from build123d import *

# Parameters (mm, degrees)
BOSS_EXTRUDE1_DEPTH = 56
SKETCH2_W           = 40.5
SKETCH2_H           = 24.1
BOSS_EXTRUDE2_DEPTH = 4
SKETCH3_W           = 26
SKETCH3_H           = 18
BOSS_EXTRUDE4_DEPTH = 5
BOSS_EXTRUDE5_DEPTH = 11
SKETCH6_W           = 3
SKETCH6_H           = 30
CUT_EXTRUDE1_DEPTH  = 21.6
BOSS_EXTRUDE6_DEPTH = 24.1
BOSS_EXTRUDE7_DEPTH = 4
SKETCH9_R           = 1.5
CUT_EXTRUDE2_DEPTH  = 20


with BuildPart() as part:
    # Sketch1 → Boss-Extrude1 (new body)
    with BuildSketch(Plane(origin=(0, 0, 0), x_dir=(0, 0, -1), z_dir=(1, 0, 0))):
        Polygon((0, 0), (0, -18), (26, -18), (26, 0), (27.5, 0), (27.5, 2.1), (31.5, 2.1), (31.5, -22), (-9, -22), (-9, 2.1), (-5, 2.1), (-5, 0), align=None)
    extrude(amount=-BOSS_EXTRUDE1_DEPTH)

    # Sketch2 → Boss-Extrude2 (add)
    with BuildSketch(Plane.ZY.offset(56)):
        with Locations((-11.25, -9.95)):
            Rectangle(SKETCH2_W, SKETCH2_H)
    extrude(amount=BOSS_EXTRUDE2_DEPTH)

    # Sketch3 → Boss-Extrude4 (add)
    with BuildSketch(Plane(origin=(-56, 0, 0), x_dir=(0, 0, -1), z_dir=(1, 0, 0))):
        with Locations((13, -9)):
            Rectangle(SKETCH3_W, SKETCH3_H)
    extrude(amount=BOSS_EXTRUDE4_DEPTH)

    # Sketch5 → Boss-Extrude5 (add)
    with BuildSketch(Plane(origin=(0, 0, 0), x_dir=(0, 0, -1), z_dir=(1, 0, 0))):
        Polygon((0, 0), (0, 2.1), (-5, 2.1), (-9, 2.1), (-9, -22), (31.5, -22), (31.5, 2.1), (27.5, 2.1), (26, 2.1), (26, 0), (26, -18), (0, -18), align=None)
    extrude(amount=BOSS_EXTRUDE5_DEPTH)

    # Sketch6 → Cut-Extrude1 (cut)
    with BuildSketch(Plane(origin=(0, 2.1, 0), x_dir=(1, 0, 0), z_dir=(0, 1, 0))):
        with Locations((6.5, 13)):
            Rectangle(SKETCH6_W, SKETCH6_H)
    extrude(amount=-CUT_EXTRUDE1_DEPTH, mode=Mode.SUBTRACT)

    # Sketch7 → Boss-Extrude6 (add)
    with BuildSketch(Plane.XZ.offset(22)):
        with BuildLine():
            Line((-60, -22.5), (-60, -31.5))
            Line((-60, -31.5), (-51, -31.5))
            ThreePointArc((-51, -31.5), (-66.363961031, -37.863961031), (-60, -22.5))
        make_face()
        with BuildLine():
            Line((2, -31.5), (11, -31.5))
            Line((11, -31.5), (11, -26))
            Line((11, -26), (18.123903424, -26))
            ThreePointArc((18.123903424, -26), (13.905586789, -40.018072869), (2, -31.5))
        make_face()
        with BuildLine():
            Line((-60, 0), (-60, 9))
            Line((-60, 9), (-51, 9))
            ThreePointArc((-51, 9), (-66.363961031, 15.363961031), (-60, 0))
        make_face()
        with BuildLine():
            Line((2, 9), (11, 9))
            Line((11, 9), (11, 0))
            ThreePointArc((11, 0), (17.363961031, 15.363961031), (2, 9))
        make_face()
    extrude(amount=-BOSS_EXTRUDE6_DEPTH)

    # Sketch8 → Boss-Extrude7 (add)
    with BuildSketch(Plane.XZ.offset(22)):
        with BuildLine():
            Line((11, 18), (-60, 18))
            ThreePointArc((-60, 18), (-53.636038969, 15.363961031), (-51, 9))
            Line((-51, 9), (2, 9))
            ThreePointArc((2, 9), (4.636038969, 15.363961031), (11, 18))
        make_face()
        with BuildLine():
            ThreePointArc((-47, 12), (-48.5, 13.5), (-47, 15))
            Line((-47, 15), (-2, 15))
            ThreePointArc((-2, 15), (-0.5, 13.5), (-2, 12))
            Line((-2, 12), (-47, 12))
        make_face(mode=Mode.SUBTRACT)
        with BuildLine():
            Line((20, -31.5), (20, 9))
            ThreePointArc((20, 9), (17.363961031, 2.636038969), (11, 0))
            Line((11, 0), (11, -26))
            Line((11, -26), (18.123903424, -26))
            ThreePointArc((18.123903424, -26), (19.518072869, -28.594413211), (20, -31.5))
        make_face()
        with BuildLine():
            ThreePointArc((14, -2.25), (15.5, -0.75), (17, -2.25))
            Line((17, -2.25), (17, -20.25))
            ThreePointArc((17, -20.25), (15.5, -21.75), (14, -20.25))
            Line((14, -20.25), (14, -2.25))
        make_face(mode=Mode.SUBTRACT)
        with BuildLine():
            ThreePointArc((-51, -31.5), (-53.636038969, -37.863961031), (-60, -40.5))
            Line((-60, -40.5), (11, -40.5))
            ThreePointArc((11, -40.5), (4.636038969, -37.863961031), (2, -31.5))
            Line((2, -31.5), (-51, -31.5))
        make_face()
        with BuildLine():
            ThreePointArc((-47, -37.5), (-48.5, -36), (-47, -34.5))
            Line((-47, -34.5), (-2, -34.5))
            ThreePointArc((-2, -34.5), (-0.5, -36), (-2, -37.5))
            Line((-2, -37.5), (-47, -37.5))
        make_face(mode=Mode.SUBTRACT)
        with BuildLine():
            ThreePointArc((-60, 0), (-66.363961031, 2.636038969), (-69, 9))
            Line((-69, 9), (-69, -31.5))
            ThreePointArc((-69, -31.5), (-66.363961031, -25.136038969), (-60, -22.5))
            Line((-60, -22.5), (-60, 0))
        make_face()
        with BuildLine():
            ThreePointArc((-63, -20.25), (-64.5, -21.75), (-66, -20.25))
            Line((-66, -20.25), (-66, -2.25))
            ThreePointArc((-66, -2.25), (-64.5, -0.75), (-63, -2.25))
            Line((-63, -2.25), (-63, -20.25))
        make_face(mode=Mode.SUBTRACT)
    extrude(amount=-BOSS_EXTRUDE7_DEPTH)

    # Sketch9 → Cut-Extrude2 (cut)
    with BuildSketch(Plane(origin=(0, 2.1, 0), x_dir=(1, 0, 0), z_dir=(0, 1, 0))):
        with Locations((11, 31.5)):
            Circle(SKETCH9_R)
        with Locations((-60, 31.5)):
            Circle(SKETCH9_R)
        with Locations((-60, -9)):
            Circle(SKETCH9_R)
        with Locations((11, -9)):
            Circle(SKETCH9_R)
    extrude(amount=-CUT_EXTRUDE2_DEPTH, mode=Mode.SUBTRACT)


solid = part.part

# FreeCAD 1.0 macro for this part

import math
import FreeCAD as App
import Part
import Sketcher

doc = App.newDocument("Part")
body = doc.addObject("PartDesign::Body", "Body")

sketch1 = body.newObject("Sketcher::SketchObject", "Sketch")
sketch1.AttachmentSupport = (doc.getObject("YZ_Plane"), [""])
sketch1.MapMode = "FlatFace"
sketch1.addGeometry(Part.LineSegment(App.Vector(-18, 0, 0), App.Vector(0, 0, 0)), False)
sketch1.addGeometry(Part.LineSegment(App.Vector(0, 0, 0), App.Vector(0, 5, 0)), False)
sketch1.addGeometry(Part.LineSegment(App.Vector(0, 5, 0), App.Vector(2.1, 5, 0)), False)
sketch1.addGeometry(Part.LineSegment(App.Vector(2.1, 5, 0), App.Vector(2.1, 9, 0)), False)
sketch1.addGeometry(Part.LineSegment(App.Vector(2.1, 9, 0), App.Vector(-22, 9, 0)), False)
sketch1.addGeometry(Part.LineSegment(App.Vector(-22, 9, 0), App.Vector(-22, -31.5, 0)), False)
sketch1.addGeometry(Part.LineSegment(App.Vector(-22, -31.5, 0), App.Vector(2.1, -31.5, 0)), False)
sketch1.addGeometry(Part.LineSegment(App.Vector(2.1, -31.5, 0), App.Vector(2.1, -27.5, 0)), False)
sketch1.addGeometry(Part.LineSegment(App.Vector(2.1, -27.5, 0), App.Vector(0, -27.5, 0)), False)
sketch1.addGeometry(Part.LineSegment(App.Vector(0, -27.5, 0), App.Vector(0, -26, 0)), False)
sketch1.addGeometry(Part.LineSegment(App.Vector(0, -26, 0), App.Vector(-18, -26, 0)), False)
sketch1.addGeometry(Part.LineSegment(App.Vector(-18, -26, 0), App.Vector(-18, 0, 0)), False)
sketch1.addConstraint(Sketcher.Constraint("Coincident", 0, 2, 1, 1))
sketch1.addConstraint(Sketcher.Constraint("Coincident", 1, 2, 2, 1))
sketch1.addConstraint(Sketcher.Constraint("Coincident", 2, 2, 3, 1))
sketch1.addConstraint(Sketcher.Constraint("Coincident", 3, 2, 4, 1))
sketch1.addConstraint(Sketcher.Constraint("Coincident", 4, 2, 5, 1))
sketch1.addConstraint(Sketcher.Constraint("Coincident", 5, 2, 6, 1))
sketch1.addConstraint(Sketcher.Constraint("Coincident", 6, 2, 7, 1))
sketch1.addConstraint(Sketcher.Constraint("Coincident", 7, 2, 8, 1))
sketch1.addConstraint(Sketcher.Constraint("Coincident", 8, 2, 9, 1))
sketch1.addConstraint(Sketcher.Constraint("Coincident", 9, 2, 10, 1))
sketch1.addConstraint(Sketcher.Constraint("Coincident", 10, 2, 11, 1))
sketch1.addConstraint(Sketcher.Constraint("Coincident", 11, 2, 0, 1))
sketch1.addConstraint(Sketcher.Constraint("Horizontal", 0))
sketch1.addConstraint(Sketcher.Constraint("Vertical", 1))
sketch1.addConstraint(Sketcher.Constraint("Horizontal", 2))
sketch1.addConstraint(Sketcher.Constraint("Vertical", 3))
sketch1.addConstraint(Sketcher.Constraint("Horizontal", 4))
sketch1.addConstraint(Sketcher.Constraint("Vertical", 5))
sketch1.addConstraint(Sketcher.Constraint("Horizontal", 6))
sketch1.addConstraint(Sketcher.Constraint("Vertical", 7))
sketch1.addConstraint(Sketcher.Constraint("Horizontal", 8))
sketch1.addConstraint(Sketcher.Constraint("Vertical", 9))
sketch1.addConstraint(Sketcher.Constraint("Horizontal", 10))
sketch1.addConstraint(Sketcher.Constraint("Vertical", 11))
sketch1.addConstraint(Sketcher.Constraint("Coincident", 0, 2, -1, 1))
sketch1.addConstraint(Sketcher.Constraint("PointOnObject", 8, 2, -2))
sketch1.addConstraint(Sketcher.Constraint("Vertical", 3, 2, 6, 2))
sketch1.addConstraint(Sketcher.Constraint("Equal", 3, 7))
sketch1.addConstraint(Sketcher.Constraint("DistanceX", 0, 1, 0, 2, 18.0))
sketch1.addConstraint(Sketcher.Constraint("DistanceY", 1, 1, 1, 2, 5.0))
sketch1.addConstraint(Sketcher.Constraint("DistanceY", 3, 1, 3, 2, 4.0))
sketch1.addConstraint(Sketcher.Constraint("DistanceY", 11, 1, 11, 2, 26.0))
sketch1.addConstraint(Sketcher.Constraint("DistanceX", 2, 1, 2, 2, 2.1))
sketch1.addConstraint(Sketcher.Constraint("DistanceX", 4, 2, 4, 1, 24.1))
sketch1.addConstraint(Sketcher.Constraint("DistanceY", 5, 2, 5, 1, 40.5))
pad1 = body.newObject("PartDesign::Pad", "Pad")
pad1.Profile = sketch1
pad1.Length = 56
pad1.Reversed = True

sketch2 = body.newObject("Sketcher::SketchObject", "Sketch001")
sketch2.AttachmentSupport = (doc.getObject("YZ_Plane"), [""])
sketch2.MapMode = "FlatFace"
sketch2.AttachmentOffset = App.Placement(App.Vector(0, 0, -56), App.Rotation())
sketch2.addGeometry(Part.LineSegment(App.Vector(2.1, -31.5, 0), App.Vector(-22, -31.5, 0)), False)
sketch2.addGeometry(Part.LineSegment(App.Vector(-22, -31.5, 0), App.Vector(-22, 9, 0)), False)
sketch2.addGeometry(Part.LineSegment(App.Vector(-22, 9, 0), App.Vector(2.1, 9, 0)), False)
sketch2.addGeometry(Part.LineSegment(App.Vector(2.1, 9, 0), App.Vector(2.1, -31.5, 0)), False)
sketch2.addConstraint(Sketcher.Constraint("Coincident", 0, 2, 1, 1))
sketch2.addConstraint(Sketcher.Constraint("Coincident", 1, 2, 2, 1))
sketch2.addConstraint(Sketcher.Constraint("Coincident", 2, 2, 3, 1))
sketch2.addConstraint(Sketcher.Constraint("Coincident", 3, 2, 0, 1))
sketch2.addConstraint(Sketcher.Constraint("Horizontal", 0))
sketch2.addConstraint(Sketcher.Constraint("Vertical", 1))
sketch2.addConstraint(Sketcher.Constraint("Horizontal", 2))
sketch2.addConstraint(Sketcher.Constraint("Vertical", 3))
sketch2.addConstraint(Sketcher.Constraint("DistanceX", 0, 2, 0, 1, 24.1))
sketch2.addConstraint(Sketcher.Constraint("DistanceY", 1, 1, 1, 2, 40.5))
sketch2.addConstraint(Sketcher.Constraint("DistanceX", 0, 2, -1, 1, 22.0))
sketch2.addConstraint(Sketcher.Constraint("DistanceY", -1, 1, 1, 2, 9.0))
pad2 = body.newObject("PartDesign::Pad", "Pad001")
pad2.Profile = sketch2
pad2.Length = 4
pad2.Reversed = True

sketch3 = body.newObject("Sketcher::SketchObject", "Sketch002")
sketch3.AttachmentSupport = (doc.getObject("YZ_Plane"), [""])
sketch3.MapMode = "FlatFace"
sketch3.AttachmentOffset = App.Placement(App.Vector(0, 0, -56), App.Rotation())
sketch3.addGeometry(Part.LineSegment(App.Vector(0, 0, 0), App.Vector(-18, 0, 0)), False)
sketch3.addGeometry(Part.LineSegment(App.Vector(-18, 0, 0), App.Vector(-18, -26, 0)), False)
sketch3.addGeometry(Part.LineSegment(App.Vector(-18, -26, 0), App.Vector(0, -26, 0)), False)
sketch3.addGeometry(Part.LineSegment(App.Vector(0, -26, 0), App.Vector(0, 0, 0)), False)
sketch3.addConstraint(Sketcher.Constraint("Coincident", 0, 2, 1, 1))
sketch3.addConstraint(Sketcher.Constraint("Coincident", 1, 2, 2, 1))
sketch3.addConstraint(Sketcher.Constraint("Coincident", 2, 2, 3, 1))
sketch3.addConstraint(Sketcher.Constraint("Coincident", 3, 2, 0, 1))
sketch3.addConstraint(Sketcher.Constraint("Horizontal", 0))
sketch3.addConstraint(Sketcher.Constraint("Vertical", 1))
sketch3.addConstraint(Sketcher.Constraint("Horizontal", 2))
sketch3.addConstraint(Sketcher.Constraint("Vertical", 3))
sketch3.addConstraint(Sketcher.Constraint("Coincident", 3, 2, -1, 1))
sketch3.addConstraint(Sketcher.Constraint("DistanceX", 0, 2, 0, 1, 18.0))
sketch3.addConstraint(Sketcher.Constraint("DistanceY", 1, 2, 1, 1, 26.0))
pad3 = body.newObject("PartDesign::Pad", "Pad002")
pad3.Profile = sketch3
pad3.Length = 5

sketch4 = body.newObject("Sketcher::SketchObject", "Sketch003")
sketch4.AttachmentSupport = (doc.getObject("YZ_Plane"), [""])
sketch4.MapMode = "FlatFace"
sketch4.addGeometry(Part.LineSegment(App.Vector(2.1, 0, 0), App.Vector(2.1, 9, 0)), False)
sketch4.addGeometry(Part.LineSegment(App.Vector(2.1, 9, 0), App.Vector(-22, 9, 0)), False)
sketch4.addGeometry(Part.LineSegment(App.Vector(-22, 9, 0), App.Vector(-22, -31.5, 0)), False)
sketch4.addGeometry(Part.LineSegment(App.Vector(-22, -31.5, 0), App.Vector(2.1, -31.5, 0)), False)
sketch4.addGeometry(Part.LineSegment(App.Vector(2.1, -31.5, 0), App.Vector(2.1, -26, 0)), False)
sketch4.addGeometry(Part.LineSegment(App.Vector(2.1, -26, 0), App.Vector(-18, -26, 0)), False)
sketch4.addGeometry(Part.LineSegment(App.Vector(-18, -26, 0), App.Vector(-18, 0, 0)), False)
sketch4.addGeometry(Part.LineSegment(App.Vector(-18, 0, 0), App.Vector(2.1, 0, 0)), False)
sketch4.addConstraint(Sketcher.Constraint("Coincident", 0, 2, 1, 1))
sketch4.addConstraint(Sketcher.Constraint("Coincident", 1, 2, 2, 1))
sketch4.addConstraint(Sketcher.Constraint("Coincident", 2, 2, 3, 1))
sketch4.addConstraint(Sketcher.Constraint("Coincident", 3, 2, 4, 1))
sketch4.addConstraint(Sketcher.Constraint("Coincident", 4, 2, 5, 1))
sketch4.addConstraint(Sketcher.Constraint("Coincident", 5, 2, 6, 1))
sketch4.addConstraint(Sketcher.Constraint("Coincident", 6, 2, 7, 1))
sketch4.addConstraint(Sketcher.Constraint("Coincident", 7, 2, 0, 1))
sketch4.addConstraint(Sketcher.Constraint("Vertical", 0))
sketch4.addConstraint(Sketcher.Constraint("Horizontal", 1))
sketch4.addConstraint(Sketcher.Constraint("Vertical", 2))
sketch4.addConstraint(Sketcher.Constraint("Horizontal", 3))
sketch4.addConstraint(Sketcher.Constraint("Vertical", 4))
sketch4.addConstraint(Sketcher.Constraint("Horizontal", 5))
sketch4.addConstraint(Sketcher.Constraint("Vertical", 6))
sketch4.addConstraint(Sketcher.Constraint("Horizontal", 7))
sketch4.addConstraint(Sketcher.Constraint("PointOnObject", 6, 2, -1))
sketch4.addConstraint(Sketcher.Constraint("Vertical", 0, 2, 3, 2))
sketch4.addConstraint(Sketcher.Constraint("DistanceY", 0, 1, 0, 2, 9.0))
sketch4.addConstraint(Sketcher.Constraint("DistanceY", 6, 1, 6, 2, 26.0))
sketch4.addConstraint(Sketcher.Constraint("DistanceX", 1, 2, 1, 1, 24.1))
sketch4.addConstraint(Sketcher.Constraint("DistanceX", 5, 2, 5, 1, 20.1))
sketch4.addConstraint(Sketcher.Constraint("DistanceY", 2, 2, 2, 1, 40.5))
sketch4.addConstraint(Sketcher.Constraint("DistanceX", 1, 2, -1, 1, 22.0))
pad4 = body.newObject("PartDesign::Pad", "Pad003")
pad4.Profile = sketch4
pad4.Length = 11

sketch5 = body.newObject("Sketcher::SketchObject", "Sketch004")
sketch5.AttachmentSupport = (doc.getObject("XZ_Plane"), [""])
sketch5.MapMode = "FlatFace"
sketch5.AttachmentOffset = App.Placement(App.Vector(0, 0, -2.1), App.Rotation())
sketch5.addGeometry(Part.LineSegment(App.Vector(5, -28, 0), App.Vector(5, 2, 0)), False)
sketch5.addGeometry(Part.LineSegment(App.Vector(5, 2, 0), App.Vector(8, 2, 0)), False)
sketch5.addGeometry(Part.LineSegment(App.Vector(8, 2, 0), App.Vector(8, -28, 0)), False)
sketch5.addGeometry(Part.LineSegment(App.Vector(8, -28, 0), App.Vector(5, -28, 0)), False)
sketch5.addConstraint(Sketcher.Constraint("Coincident", 0, 2, 1, 1))
sketch5.addConstraint(Sketcher.Constraint("Coincident", 1, 2, 2, 1))
sketch5.addConstraint(Sketcher.Constraint("Coincident", 2, 2, 3, 1))
sketch5.addConstraint(Sketcher.Constraint("Coincident", 3, 2, 0, 1))
sketch5.addConstraint(Sketcher.Constraint("Vertical", 0))
sketch5.addConstraint(Sketcher.Constraint("Horizontal", 1))
sketch5.addConstraint(Sketcher.Constraint("Vertical", 2))
sketch5.addConstraint(Sketcher.Constraint("Horizontal", 3))
sketch5.addConstraint(Sketcher.Constraint("DistanceX", 1, 1, 1, 2, 3.0))
sketch5.addConstraint(Sketcher.Constraint("DistanceY", 0, 1, 0, 2, 30.0))
sketch5.addConstraint(Sketcher.Constraint("DistanceX", -1, 1, 0, 2, 5.0))
sketch5.addConstraint(Sketcher.Constraint("DistanceY", -1, 1, 0, 2, 2.0))
pocket1 = body.newObject("PartDesign::Pocket", "Pocket")
pocket1.Profile = sketch5
pocket1.Length = 21.6
pocket1.Reversed = True

sketch6 = body.newObject("Sketcher::SketchObject", "Sketch005")
sketch6.AttachmentSupport = (doc.getObject("XZ_Plane"), [""])
sketch6.MapMode = "FlatFace"
sketch6.AttachmentOffset = App.Placement(App.Vector(0, 0, 22), App.Rotation())
sketch6.addGeometry(Part.LineSegment(App.Vector(-60, -31.5, 0), App.Vector(-60, -22.5, 0)), False)
sketch6.addGeometry(Part.ArcOfCircle(Part.Circle(App.Vector(-60, -31.5, 0), App.Vector(0, 0, 1), 9), math.radians(90), math.radians(360)), False)
sketch6.addGeometry(Part.LineSegment(App.Vector(-51, -31.5, 0), App.Vector(-60, -31.5, 0)), False)
sketch6.addGeometry(Part.LineSegment(App.Vector(11, -31.5, 0), App.Vector(2, -31.5, 0)), False)
sketch6.addGeometry(Part.ArcOfCircle(Part.Circle(App.Vector(11, -31.5, 0), App.Vector(0, 0, 1), 9), math.radians(180), math.radians(397.669887)), False)
sketch6.addGeometry(Part.LineSegment(App.Vector(18.123903, -26, 0), App.Vector(11, -26, 0)), False)
sketch6.addGeometry(Part.LineSegment(App.Vector(11, -26, 0), App.Vector(11, -31.5, 0)), False)
sketch6.addGeometry(Part.LineSegment(App.Vector(-60, 0, 0), App.Vector(-60, 9, 0)), False)
sketch6.addGeometry(Part.LineSegment(App.Vector(-60, 9, 0), App.Vector(-51, 9, 0)), False)
sketch6.addGeometry(Part.ArcOfCircle(Part.Circle(App.Vector(-60, 9, 0), App.Vector(0, 0, 1), 9), math.radians(0), math.radians(270)), False)
sketch6.addGeometry(Part.LineSegment(App.Vector(2, 9, 0), App.Vector(11, 9, 0)), False)
sketch6.addGeometry(Part.LineSegment(App.Vector(11, 9, 0), App.Vector(11, 0, 0)), False)
sketch6.addGeometry(Part.ArcOfCircle(Part.Circle(App.Vector(11, 9, 0), App.Vector(0, 0, 1), 9), math.radians(-90), math.radians(180)), False)
sketch6.addConstraint(Sketcher.Constraint("Coincident", 0, 2, 1, 1))
sketch6.addConstraint(Sketcher.Constraint("Coincident", 1, 2, 2, 1))
sketch6.addConstraint(Sketcher.Constraint("Coincident", 2, 2, 0, 1))
sketch6.addConstraint(Sketcher.Constraint("Coincident", 3, 2, 4, 1))
sketch6.addConstraint(Sketcher.Constraint("Coincident", 4, 2, 5, 1))
sketch6.addConstraint(Sketcher.Constraint("Coincident", 5, 2, 6, 1))
sketch6.addConstraint(Sketcher.Constraint("Coincident", 6, 2, 3, 1))
sketch6.addConstraint(Sketcher.Constraint("Coincident", 7, 2, 8, 1))
sketch6.addConstraint(Sketcher.Constraint("Coincident", 8, 2, 9, 1))
sketch6.addConstraint(Sketcher.Constraint("Coincident", 9, 2, 7, 1))
sketch6.addConstraint(Sketcher.Constraint("Coincident", 10, 2, 11, 1))
sketch6.addConstraint(Sketcher.Constraint("Coincident", 11, 2, 12, 1))
sketch6.addConstraint(Sketcher.Constraint("Coincident", 12, 2, 10, 1))
sketch6.addConstraint(Sketcher.Constraint("Vertical", 0))
sketch6.addConstraint(Sketcher.Constraint("Horizontal", 2))
sketch6.addConstraint(Sketcher.Constraint("Horizontal", 3))
sketch6.addConstraint(Sketcher.Constraint("Horizontal", 5))
sketch6.addConstraint(Sketcher.Constraint("Vertical", 6))
sketch6.addConstraint(Sketcher.Constraint("Vertical", 7))
sketch6.addConstraint(Sketcher.Constraint("Horizontal", 8))
sketch6.addConstraint(Sketcher.Constraint("Horizontal", 10))
sketch6.addConstraint(Sketcher.Constraint("Vertical", 11))
sketch6.addConstraint(Sketcher.Constraint("Coincident", 2, 2, 1, 3))
sketch6.addConstraint(Sketcher.Constraint("Coincident", 6, 2, 4, 3))
sketch6.addConstraint(Sketcher.Constraint("Coincident", 7, 2, 9, 3))
sketch6.addConstraint(Sketcher.Constraint("Coincident", 10, 2, 12, 3))
sketch6.addConstraint(Sketcher.Constraint("Equal", 1, 4))
sketch6.addConstraint(Sketcher.Constraint("Equal", 4, 9))
sketch6.addConstraint(Sketcher.Constraint("Equal", 9, 12))
sketch6.addConstraint(Sketcher.Constraint("PointOnObject", 9, 2, -1))
sketch6.addConstraint(Sketcher.Constraint("PointOnObject", 11, 2, -1))
sketch6.addConstraint(Sketcher.Constraint("Horizontal", 1, 3, 4, 3))
sketch6.addConstraint(Sketcher.Constraint("Vertical", 1, 3, 9, 3))
sketch6.addConstraint(Sketcher.Constraint("Vertical", 4, 3, 12, 3))
sketch6.addConstraint(Sketcher.Constraint("Radius", 1, 9.0))
sketch6.addConstraint(Sketcher.Constraint("DistanceY", 6, 2, 6, 1, 5.5))
sketch6.addConstraint(Sketcher.Constraint("DistanceX", 1, 3, -1, 1, 60.0))
sketch6.addConstraint(Sketcher.Constraint("DistanceX", -1, 1, 4, 3, 11.0))
sketch6.addConstraint(Sketcher.Constraint("DistanceY", 4, 2, -1, 1, 26.0))
pad5 = body.newObject("PartDesign::Pad", "Pad004")
pad5.Profile = sketch6
pad5.Length = 24.1
pad5.Reversed = True

sketch7 = body.newObject("Sketcher::SketchObject", "Sketch006")
sketch7.AttachmentSupport = (doc.getObject("XZ_Plane"), [""])
sketch7.MapMode = "FlatFace"
sketch7.AttachmentOffset = App.Placement(App.Vector(0, 0, 22), App.Rotation())
sketch7.addGeometry(Part.LineSegment(App.Vector(11, 18, 0), App.Vector(-60, 18, 0)), False)
sketch7.addGeometry(Part.ArcOfCircle(Part.Circle(App.Vector(-60, 9, 0), App.Vector(0, 0, 1), 9), math.radians(0), math.radians(90)), False)
sketch7.addGeometry(Part.LineSegment(App.Vector(-51, 9, 0), App.Vector(2, 9, 0)), False)
sketch7.addGeometry(Part.ArcOfCircle(Part.Circle(App.Vector(11, 9, 0), App.Vector(0, 0, 1), 9), math.radians(90), math.radians(180)), False)
sketch7.addGeometry(Part.LineSegment(App.Vector(-2, 12, 0), App.Vector(-47, 12, 0)), False)
sketch7.addGeometry(Part.ArcOfCircle(Part.Circle(App.Vector(-47, 13.5, 0), App.Vector(0, 0, 1), 1.5), math.radians(90), math.radians(270)), False)
sketch7.addGeometry(Part.LineSegment(App.Vector(-47, 15, 0), App.Vector(-2, 15, 0)), False)
sketch7.addGeometry(Part.ArcOfCircle(Part.Circle(App.Vector(-2, 13.5, 0), App.Vector(0, 0, 1), 1.5), math.radians(-90), math.radians(90)), False)
sketch7.addGeometry(Part.LineSegment(App.Vector(20, -31.5, 0), App.Vector(20, 9, 0)), False)
sketch7.addGeometry(Part.ArcOfCircle(Part.Circle(App.Vector(11, 9, 0), App.Vector(0, 0, 1), 9), math.radians(-90), math.radians(0)), False)
sketch7.addGeometry(Part.LineSegment(App.Vector(11, 0, 0), App.Vector(11, -26, 0)), False)
sketch7.addGeometry(Part.LineSegment(App.Vector(11, -26, 0), App.Vector(18.123903, -26, 0)), False)
sketch7.addGeometry(Part.ArcOfCircle(Part.Circle(App.Vector(11, -31.5, 0), App.Vector(0, 0, 1), 9), math.radians(0), math.radians(37.669887)), False)
sketch7.addGeometry(Part.LineSegment(App.Vector(14, -20.25, 0), App.Vector(14, -2.25, 0)), False)
sketch7.addGeometry(Part.ArcOfCircle(Part.Circle(App.Vector(15.5, -2.25, 0), App.Vector(0, 0, 1), 1.5), math.radians(0), math.radians(180)), False)
sketch7.addGeometry(Part.LineSegment(App.Vector(17, -2.25, 0), App.Vector(17, -20.25, 0)), False)
sketch7.addGeometry(Part.ArcOfCircle(Part.Circle(App.Vector(15.5, -20.25, 0), App.Vector(0, 0, 1), 1.5), math.radians(180), math.radians(360)), False)
sketch7.addGeometry(Part.ArcOfCircle(Part.Circle(App.Vector(-60, -31.5, 0), App.Vector(0, 0, 1), 9), math.radians(-90), math.radians(0)), False)
sketch7.addGeometry(Part.LineSegment(App.Vector(-60, -40.5, 0), App.Vector(11, -40.5, 0)), False)
sketch7.addGeometry(Part.ArcOfCircle(Part.Circle(App.Vector(11, -31.5, 0), App.Vector(0, 0, 1), 9), math.radians(180), math.radians(270)), False)
sketch7.addGeometry(Part.LineSegment(App.Vector(2, -31.5, 0), App.Vector(-51, -31.5, 0)), False)
sketch7.addGeometry(Part.LineSegment(App.Vector(-2, -37.5, 0), App.Vector(-47, -37.5, 0)), False)
sketch7.addGeometry(Part.ArcOfCircle(Part.Circle(App.Vector(-47, -36, 0), App.Vector(0, 0, 1), 1.5), math.radians(90), math.radians(270)), False)
sketch7.addGeometry(Part.LineSegment(App.Vector(-47, -34.5, 0), App.Vector(-2, -34.5, 0)), False)
sketch7.addGeometry(Part.ArcOfCircle(Part.Circle(App.Vector(-2, -36, 0), App.Vector(0, 0, 1), 1.5), math.radians(-90), math.radians(90)), False)
sketch7.addGeometry(Part.ArcOfCircle(Part.Circle(App.Vector(-60, 9, 0), App.Vector(0, 0, 1), 9), math.radians(180), math.radians(270)), False)
sketch7.addGeometry(Part.LineSegment(App.Vector(-69, 9, 0), App.Vector(-69, -31.5, 0)), False)
sketch7.addGeometry(Part.ArcOfCircle(Part.Circle(App.Vector(-60, -31.5, 0), App.Vector(0, 0, 1), 9), math.radians(90), math.radians(180)), False)
sketch7.addGeometry(Part.LineSegment(App.Vector(-60, -22.5, 0), App.Vector(-60, 0, 0)), False)
sketch7.addGeometry(Part.LineSegment(App.Vector(-63, -2.25, 0), App.Vector(-63, -20.25, 0)), False)
sketch7.addGeometry(Part.ArcOfCircle(Part.Circle(App.Vector(-64.5, -20.25, 0), App.Vector(0, 0, 1), 1.5), math.radians(180), math.radians(360)), False)
sketch7.addGeometry(Part.LineSegment(App.Vector(-66, -20.25, 0), App.Vector(-66, -2.25, 0)), False)
sketch7.addGeometry(Part.ArcOfCircle(Part.Circle(App.Vector(-64.5, -2.25, 0), App.Vector(0, 0, 1), 1.5), math.radians(0), math.radians(180)), False)
sketch7.addConstraint(Sketcher.Constraint("Tangent", 0, 2, 1, 2))
sketch7.addConstraint(Sketcher.Constraint("Coincident", 1, 1, 2, 1))
sketch7.addConstraint(Sketcher.Constraint("Coincident", 2, 2, 3, 2))
sketch7.addConstraint(Sketcher.Constraint("Tangent", 3, 1, 0, 1))
sketch7.addConstraint(Sketcher.Constraint("Tangent", 4, 2, 5, 2))
sketch7.addConstraint(Sketcher.Constraint("Tangent", 5, 1, 6, 1))
sketch7.addConstraint(Sketcher.Constraint("Tangent", 6, 2, 7, 2))
sketch7.addConstraint(Sketcher.Constraint("Tangent", 7, 1, 4, 1))
sketch7.addConstraint(Sketcher.Constraint("Tangent", 8, 2, 9, 2))
sketch7.addConstraint(Sketcher.Constraint("Coincident", 9, 1, 10, 1))
sketch7.addConstraint(Sketcher.Constraint("Coincident", 10, 2, 11, 1))
sketch7.addConstraint(Sketcher.Constraint("Coincident", 11, 2, 12, 2))
sketch7.addConstraint(Sketcher.Constraint("Tangent", 12, 1, 8, 1))
sketch7.addConstraint(Sketcher.Constraint("Tangent", 13, 2, 14, 2))
sketch7.addConstraint(Sketcher.Constraint("Tangent", 14, 1, 15, 1))
sketch7.addConstraint(Sketcher.Constraint("Tangent", 15, 2, 16, 2))
sketch7.addConstraint(Sketcher.Constraint("Tangent", 16, 1, 13, 1))
sketch7.addConstraint(Sketcher.Constraint("Tangent", 17, 1, 18, 1))
sketch7.addConstraint(Sketcher.Constraint("Tangent", 18, 2, 19, 2))
sketch7.addConstraint(Sketcher.Constraint("Coincident", 19, 1, 20, 1))
sketch7.addConstraint(Sketcher.Constraint("Coincident", 20, 2, 17, 2))
sketch7.addConstraint(Sketcher.Constraint("Tangent", 21, 2, 22, 2))
sketch7.addConstraint(Sketcher.Constraint("Tangent", 22, 1, 23, 1))
sketch7.addConstraint(Sketcher.Constraint("Tangent", 23, 2, 24, 2))
sketch7.addConstraint(Sketcher.Constraint("Tangent", 24, 1, 21, 1))
sketch7.addConstraint(Sketcher.Constraint("Tangent", 25, 1, 26, 1))
sketch7.addConstraint(Sketcher.Constraint("Tangent", 26, 2, 27, 2))
sketch7.addConstraint(Sketcher.Constraint("Coincident", 27, 1, 28, 1))
sketch7.addConstraint(Sketcher.Constraint("Coincident", 28, 2, 25, 2))
sketch7.addConstraint(Sketcher.Constraint("Tangent", 29, 2, 30, 2))
sketch7.addConstraint(Sketcher.Constraint("Tangent", 30, 1, 31, 1))
sketch7.addConstraint(Sketcher.Constraint("Tangent", 31, 2, 32, 2))
sketch7.addConstraint(Sketcher.Constraint("Tangent", 32, 1, 29, 1))
sketch7.addConstraint(Sketcher.Constraint("Horizontal", 0))
sketch7.addConstraint(Sketcher.Constraint("Horizontal", 2))
sketch7.addConstraint(Sketcher.Constraint("Horizontal", 4))
sketch7.addConstraint(Sketcher.Constraint("Horizontal", 6))
sketch7.addConstraint(Sketcher.Constraint("Vertical", 8))
sketch7.addConstraint(Sketcher.Constraint("Vertical", 10))
sketch7.addConstraint(Sketcher.Constraint("Horizontal", 11))
sketch7.addConstraint(Sketcher.Constraint("Vertical", 13))
sketch7.addConstraint(Sketcher.Constraint("Vertical", 15))
sketch7.addConstraint(Sketcher.Constraint("Horizontal", 18))
sketch7.addConstraint(Sketcher.Constraint("Horizontal", 20))
sketch7.addConstraint(Sketcher.Constraint("Horizontal", 21))
sketch7.addConstraint(Sketcher.Constraint("Horizontal", 23))
sketch7.addConstraint(Sketcher.Constraint("Vertical", 26))
sketch7.addConstraint(Sketcher.Constraint("Vertical", 28))
sketch7.addConstraint(Sketcher.Constraint("Vertical", 29))
sketch7.addConstraint(Sketcher.Constraint("Vertical", 31))
sketch7.addConstraint(Sketcher.Constraint("Coincident", 9, 3, 3, 3))
sketch7.addConstraint(Sketcher.Constraint("Coincident", 19, 3, 12, 3))
sketch7.addConstraint(Sketcher.Constraint("Coincident", 25, 3, 1, 3))
sketch7.addConstraint(Sketcher.Constraint("Coincident", 27, 3, 17, 3))
sketch7.addConstraint(Sketcher.Constraint("Equal", 1, 3))
sketch7.addConstraint(Sketcher.Constraint("Equal", 3, 9))
sketch7.addConstraint(Sketcher.Constraint("Equal", 9, 12))
sketch7.addConstraint(Sketcher.Constraint("Equal", 7, 14))
sketch7.addConstraint(Sketcher.Constraint("Equal", 12, 17))
sketch7.addConstraint(Sketcher.Constraint("Equal", 17, 19))
sketch7.addConstraint(Sketcher.Constraint("Equal", 16, 22))
sketch7.addConstraint(Sketcher.Constraint("Equal", 19, 25))
sketch7.addConstraint(Sketcher.Constraint("Equal", 25, 27))
sketch7.addConstraint(Sketcher.Constraint("Equal", 24, 30))
sketch7.addConstraint(Sketcher.Constraint("PointOnObject", 9, 1, -1))
sketch7.addConstraint(Sketcher.Constraint("Horizontal", 16, 3, 30, 3))
sketch7.addConstraint(Sketcher.Constraint("Horizontal", 14, 3, 32, 3))
sketch7.addConstraint(Sketcher.Constraint("Horizontal", 25, 3, 1, 1))
sketch7.addConstraint(Sketcher.Constraint("Horizontal", 12, 1, 19, 1))
sketch7.addConstraint(Sketcher.Constraint("Vertical", 5, 3, 22, 3))
sketch7.addConstraint(Sketcher.Constraint("Vertical", 7, 3, 24, 3))
sketch7.addConstraint(Sketcher.Constraint("Vertical", 3, 1, 9, 1))
sketch7.addConstraint(Sketcher.Constraint("Vertical", 17, 1, 27, 1))
sketch7.addConstraint(Sketcher.Constraint("Radius", 1, 9.0))
sketch7.addConstraint(Sketcher.Constraint("Radius", 5, 1.5))
sketch7.addConstraint(Sketcher.Constraint("DistanceX", 0, 2, 0, 1, 71.0))
sketch7.addConstraint(Sketcher.Constraint("DistanceX", 4, 2, 4, 1, 45.0))
sketch7.addConstraint(Sketcher.Constraint("DistanceY", 10, 2, 10, 1, 26.0))
sketch7.addConstraint(Sketcher.Constraint("DistanceY", 13, 1, 13, 2, 18.0))
sketch7.addConstraint(Sketcher.Constraint("DistanceY", 8, 1, 8, 2, 40.5))
sketch7.addConstraint(Sketcher.Constraint("DistanceX", 1, 3, -1, 1, 60.0))
sketch7.addConstraint(Sketcher.Constraint("DistanceX", 5, 3, -1, 1, 47.0))
sketch7.addConstraint(Sketcher.Constraint("DistanceY", 22, 3, -1, 1, 36.0))
sketch7.addConstraint(Sketcher.Constraint("DistanceY", -1, 1, 4, 2, 12.0))
sketch7.addConstraint(Sketcher.Constraint("DistanceX", -1, 1, 13, 2, 14.0))
sketch7.addConstraint(Sketcher.Constraint("DistanceX", 29, 2, -1, 1, 63.0))
sketch7.addConstraint(Sketcher.Constraint("DistanceY", 14, 3, -1, 1, 2.25))
pad6 = body.newObject("PartDesign::Pad", "Pad005")
pad6.Profile = sketch7
pad6.Length = 4
pad6.Reversed = True

sketch8 = body.newObject("Sketcher::SketchObject", "Sketch007")
sketch8.AttachmentSupport = (doc.getObject("XZ_Plane"), [""])
sketch8.MapMode = "FlatFace"
sketch8.AttachmentOffset = App.Placement(App.Vector(0, 0, -2.1), App.Rotation())
sketch8.addGeometry(Part.Circle(App.Vector(11, -31.5, 0), App.Vector(0, 0, 1), 1.5), False)
sketch8.addGeometry(Part.Circle(App.Vector(-60, -31.5, 0), App.Vector(0, 0, 1), 1.5), False)
sketch8.addGeometry(Part.Circle(App.Vector(-60, 9, 0), App.Vector(0, 0, 1), 1.5), False)
sketch8.addGeometry(Part.Circle(App.Vector(11, 9, 0), App.Vector(0, 0, 1), 1.5), False)
sketch8.addConstraint(Sketcher.Constraint("Equal", 0, 1))
sketch8.addConstraint(Sketcher.Constraint("Equal", 1, 2))
sketch8.addConstraint(Sketcher.Constraint("Equal", 2, 3))
sketch8.addConstraint(Sketcher.Constraint("Horizontal", 0, 3, 1, 3))
sketch8.addConstraint(Sketcher.Constraint("Horizontal", 2, 3, 3, 3))
sketch8.addConstraint(Sketcher.Constraint("Vertical", 1, 3, 2, 3))
sketch8.addConstraint(Sketcher.Constraint("Vertical", 0, 3, 3, 3))
sketch8.addConstraint(Sketcher.Constraint("Diameter", 0, 3.0))
sketch8.addConstraint(Sketcher.Constraint("DistanceX", -1, 1, 0, 3, 11.0))
sketch8.addConstraint(Sketcher.Constraint("DistanceX", 1, 3, -1, 1, 60.0))
sketch8.addConstraint(Sketcher.Constraint("DistanceY", -1, 1, 2, 3, 9.0))
sketch8.addConstraint(Sketcher.Constraint("DistanceY", 0, 3, -1, 1, 31.5))
pocket2 = body.newObject("PartDesign::Pocket", "Pocket001")
pocket2.Profile = sketch8
pocket2.Length = 20
pocket2.Reversed = True

doc.recompute()
